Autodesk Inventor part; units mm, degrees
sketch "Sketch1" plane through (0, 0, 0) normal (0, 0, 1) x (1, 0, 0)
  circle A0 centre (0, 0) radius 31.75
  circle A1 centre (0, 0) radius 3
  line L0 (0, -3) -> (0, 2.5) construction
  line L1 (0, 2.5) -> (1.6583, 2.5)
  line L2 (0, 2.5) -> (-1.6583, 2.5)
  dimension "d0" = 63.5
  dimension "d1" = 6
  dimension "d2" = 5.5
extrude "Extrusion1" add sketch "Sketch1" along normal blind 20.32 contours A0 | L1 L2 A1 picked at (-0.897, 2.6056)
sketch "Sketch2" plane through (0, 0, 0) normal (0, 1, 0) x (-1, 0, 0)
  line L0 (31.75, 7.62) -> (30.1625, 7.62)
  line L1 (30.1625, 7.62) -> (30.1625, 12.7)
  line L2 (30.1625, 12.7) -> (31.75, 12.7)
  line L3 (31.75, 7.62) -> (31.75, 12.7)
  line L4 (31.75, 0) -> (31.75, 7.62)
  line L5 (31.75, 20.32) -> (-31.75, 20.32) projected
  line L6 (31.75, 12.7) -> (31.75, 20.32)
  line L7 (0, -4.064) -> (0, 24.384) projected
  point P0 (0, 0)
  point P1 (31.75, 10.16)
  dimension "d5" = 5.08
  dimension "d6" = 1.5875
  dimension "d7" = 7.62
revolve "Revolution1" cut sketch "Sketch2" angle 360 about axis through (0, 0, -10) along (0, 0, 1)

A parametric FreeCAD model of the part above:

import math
import FreeCAD as App
import Part
import Sketcher
from FreeCAD import Vector
Q = App.Units.Quantity


def add_polygon(sketch, points):
    """Adds a closed chain of lines whose ends are joined by coincident constraints."""
    first, n = sketch.GeometryCount, len(points)
    for a, b in zip(points, points[1:] + points[:1]):
        sketch.addGeometry(Part.LineSegment(App.Vector(*a, 0), App.Vector(*b, 0)), False)
    for i in range(n):
        sketch.addConstraint(Sketcher.Constraint("Coincident", first + i, 2, first + (i + 1) % n, 1))

doc = App.newDocument("Part")
body = doc.addObject("PartDesign::Body", "Body")

sketch1 = doc.addObject("Sketcher::SketchObject", "Sketch")
body.addObject(sketch1)
sketch1.AttachmentSupport = (doc.XY_Plane, [""])
sketch1.MapMode = "FlatFace"
sketch1.addGeometry(Part.Circle(Vector(0, 0, 0), Vector(0, 0, 1), 31.75), False)
sketch1.addGeometry(Part.ArcOfCircle(Part.Circle(Vector(0, 0, 0), Vector(0, 0, 1), 3), math.radians(123.557112), math.radians(416.442888)), False)
sketch1.addGeometry(Part.LineSegment(Vector(1.6583, 2.5, 0), Vector(-1.6583, 2.5, 0)), False)
sketch1.addConstraint(Sketcher.Constraint("Coincident", 1, 1, 2, 2))
sketch1.addConstraint(Sketcher.Constraint("Coincident", 2, 1, 1, 2))
sketch1.addConstraint(Sketcher.Constraint("Horizontal", 2))
sketch1.addConstraint(Sketcher.Constraint("Coincident", 0, 3, -1, 1))
sketch1.addConstraint(Sketcher.Constraint("Coincident", 1, 3, -1, 1))
sketch1.addConstraint(Sketcher.Constraint("Diameter", 0, Q("2.5 in")))
sketch1.addConstraint(Sketcher.Constraint("Radius", 1, Q("0.1181 in")))
sketch1.addConstraint(Sketcher.Constraint("DistanceX", 2, 2, 2, 1, 3.3166))
pad1 = doc.addObject("PartDesign::Pad", "Pad")
body.addObject(pad1)
pad1.Profile = sketch1
pad1.Length = Q("0.8 in")

sketch2 = doc.addObject("Sketcher::SketchObject", "Sketch001")
body.addObject(sketch2)
sketch2.AttachmentSupport = (doc.XZ_Plane, [""])
sketch2.MapMode = "FlatFace"
add_polygon(sketch2, [(-30.1625, 7.62), (-31.75, 7.62), (-31.75, 12.7), (-30.1625, 12.7)])
sketch2.addConstraint(Sketcher.Constraint("Horizontal", 0))
sketch2.addConstraint(Sketcher.Constraint("Vertical", 1))
sketch2.addConstraint(Sketcher.Constraint("Horizontal", 2))
sketch2.addConstraint(Sketcher.Constraint("Vertical", 3))
sketch2.addConstraint(Sketcher.Constraint("DistanceY", 1, 1, 1, 2, Q("0.2 in")))
sketch2.addConstraint(Sketcher.Constraint("DistanceY", -1, 1, 0, 2, Q("0.3 in")))
sketch2.addConstraint(Sketcher.Constraint("DistanceX", 0, 2, 0, 1, Q("0.0625 in")))
sketch2.addConstraint(Sketcher.Constraint("DistanceX", 0, 2, -1, 1, Q("1.25 in")))
groove = doc.addObject("PartDesign::Groove", "Groove")
body.addObject(groove)
groove.Profile = sketch2
groove.ReferenceAxis = (sketch2, ["V_Axis"])
groove.Angle = 360

doc.recompute()
